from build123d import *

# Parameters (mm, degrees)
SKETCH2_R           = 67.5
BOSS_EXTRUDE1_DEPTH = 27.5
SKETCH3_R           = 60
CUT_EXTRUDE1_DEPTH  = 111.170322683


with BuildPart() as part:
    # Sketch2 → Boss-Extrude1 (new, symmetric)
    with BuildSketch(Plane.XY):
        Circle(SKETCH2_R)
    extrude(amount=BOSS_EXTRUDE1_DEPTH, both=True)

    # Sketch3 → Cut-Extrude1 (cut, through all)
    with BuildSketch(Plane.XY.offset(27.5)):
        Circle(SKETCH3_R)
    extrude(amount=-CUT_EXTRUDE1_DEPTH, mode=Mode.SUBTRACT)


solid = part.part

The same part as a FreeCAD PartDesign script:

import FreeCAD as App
import Part
import Sketcher

V = App.Vector

doc = App.newDocument("Part")
body = doc.addObject("PartDesign::Body", "Body")

# Sketch on XY plane
sketch1 = body.newObject("Sketcher::SketchObject", "Sketch")
sketch1.AttachmentSupport = (doc.getObject("XY_Plane"), [""])
sketch1.MapMode = "FlatFace"
sketch1.addGeometry(Part.Circle(V(0, 0, 0), V(0, 0, 1), 68), False)
sketch1.addConstraint([
    Sketcher.Constraint("Coincident", 0, 3, -1, 1),
    Sketcher.Constraint("Diameter", 0, 135.0),
])
pad1 = body.newObject("PartDesign::Pad", "Pad")
pad1.Profile = sketch1
pad1.Length = 55
pad1.Midplane = True

# Sketch on XY plane
sketch2 = body.newObject("Sketcher::SketchObject", "Sketch001")
sketch2.AttachmentSupport = (doc.getObject("XY_Plane"), [""])
sketch2.MapMode = "FlatFace"
sketch2.AttachmentOffset = App.Placement(V(0, 0, 27.5), App.Rotation())
sketch2.addGeometry(Part.Circle(V(0, 0, 0), V(0, 0, 1), 60), False)
sketch2.addConstraint([
    Sketcher.Constraint("Coincident", 0, 3, -1, 1),
    Sketcher.Constraint("Diameter", 0, 120.0),
])
pocket1 = body.newObject("PartDesign::Pocket", "Pocket")
pocket1.Profile = sketch2
pocket1.Type = "ThroughAll"

doc.recompute()
